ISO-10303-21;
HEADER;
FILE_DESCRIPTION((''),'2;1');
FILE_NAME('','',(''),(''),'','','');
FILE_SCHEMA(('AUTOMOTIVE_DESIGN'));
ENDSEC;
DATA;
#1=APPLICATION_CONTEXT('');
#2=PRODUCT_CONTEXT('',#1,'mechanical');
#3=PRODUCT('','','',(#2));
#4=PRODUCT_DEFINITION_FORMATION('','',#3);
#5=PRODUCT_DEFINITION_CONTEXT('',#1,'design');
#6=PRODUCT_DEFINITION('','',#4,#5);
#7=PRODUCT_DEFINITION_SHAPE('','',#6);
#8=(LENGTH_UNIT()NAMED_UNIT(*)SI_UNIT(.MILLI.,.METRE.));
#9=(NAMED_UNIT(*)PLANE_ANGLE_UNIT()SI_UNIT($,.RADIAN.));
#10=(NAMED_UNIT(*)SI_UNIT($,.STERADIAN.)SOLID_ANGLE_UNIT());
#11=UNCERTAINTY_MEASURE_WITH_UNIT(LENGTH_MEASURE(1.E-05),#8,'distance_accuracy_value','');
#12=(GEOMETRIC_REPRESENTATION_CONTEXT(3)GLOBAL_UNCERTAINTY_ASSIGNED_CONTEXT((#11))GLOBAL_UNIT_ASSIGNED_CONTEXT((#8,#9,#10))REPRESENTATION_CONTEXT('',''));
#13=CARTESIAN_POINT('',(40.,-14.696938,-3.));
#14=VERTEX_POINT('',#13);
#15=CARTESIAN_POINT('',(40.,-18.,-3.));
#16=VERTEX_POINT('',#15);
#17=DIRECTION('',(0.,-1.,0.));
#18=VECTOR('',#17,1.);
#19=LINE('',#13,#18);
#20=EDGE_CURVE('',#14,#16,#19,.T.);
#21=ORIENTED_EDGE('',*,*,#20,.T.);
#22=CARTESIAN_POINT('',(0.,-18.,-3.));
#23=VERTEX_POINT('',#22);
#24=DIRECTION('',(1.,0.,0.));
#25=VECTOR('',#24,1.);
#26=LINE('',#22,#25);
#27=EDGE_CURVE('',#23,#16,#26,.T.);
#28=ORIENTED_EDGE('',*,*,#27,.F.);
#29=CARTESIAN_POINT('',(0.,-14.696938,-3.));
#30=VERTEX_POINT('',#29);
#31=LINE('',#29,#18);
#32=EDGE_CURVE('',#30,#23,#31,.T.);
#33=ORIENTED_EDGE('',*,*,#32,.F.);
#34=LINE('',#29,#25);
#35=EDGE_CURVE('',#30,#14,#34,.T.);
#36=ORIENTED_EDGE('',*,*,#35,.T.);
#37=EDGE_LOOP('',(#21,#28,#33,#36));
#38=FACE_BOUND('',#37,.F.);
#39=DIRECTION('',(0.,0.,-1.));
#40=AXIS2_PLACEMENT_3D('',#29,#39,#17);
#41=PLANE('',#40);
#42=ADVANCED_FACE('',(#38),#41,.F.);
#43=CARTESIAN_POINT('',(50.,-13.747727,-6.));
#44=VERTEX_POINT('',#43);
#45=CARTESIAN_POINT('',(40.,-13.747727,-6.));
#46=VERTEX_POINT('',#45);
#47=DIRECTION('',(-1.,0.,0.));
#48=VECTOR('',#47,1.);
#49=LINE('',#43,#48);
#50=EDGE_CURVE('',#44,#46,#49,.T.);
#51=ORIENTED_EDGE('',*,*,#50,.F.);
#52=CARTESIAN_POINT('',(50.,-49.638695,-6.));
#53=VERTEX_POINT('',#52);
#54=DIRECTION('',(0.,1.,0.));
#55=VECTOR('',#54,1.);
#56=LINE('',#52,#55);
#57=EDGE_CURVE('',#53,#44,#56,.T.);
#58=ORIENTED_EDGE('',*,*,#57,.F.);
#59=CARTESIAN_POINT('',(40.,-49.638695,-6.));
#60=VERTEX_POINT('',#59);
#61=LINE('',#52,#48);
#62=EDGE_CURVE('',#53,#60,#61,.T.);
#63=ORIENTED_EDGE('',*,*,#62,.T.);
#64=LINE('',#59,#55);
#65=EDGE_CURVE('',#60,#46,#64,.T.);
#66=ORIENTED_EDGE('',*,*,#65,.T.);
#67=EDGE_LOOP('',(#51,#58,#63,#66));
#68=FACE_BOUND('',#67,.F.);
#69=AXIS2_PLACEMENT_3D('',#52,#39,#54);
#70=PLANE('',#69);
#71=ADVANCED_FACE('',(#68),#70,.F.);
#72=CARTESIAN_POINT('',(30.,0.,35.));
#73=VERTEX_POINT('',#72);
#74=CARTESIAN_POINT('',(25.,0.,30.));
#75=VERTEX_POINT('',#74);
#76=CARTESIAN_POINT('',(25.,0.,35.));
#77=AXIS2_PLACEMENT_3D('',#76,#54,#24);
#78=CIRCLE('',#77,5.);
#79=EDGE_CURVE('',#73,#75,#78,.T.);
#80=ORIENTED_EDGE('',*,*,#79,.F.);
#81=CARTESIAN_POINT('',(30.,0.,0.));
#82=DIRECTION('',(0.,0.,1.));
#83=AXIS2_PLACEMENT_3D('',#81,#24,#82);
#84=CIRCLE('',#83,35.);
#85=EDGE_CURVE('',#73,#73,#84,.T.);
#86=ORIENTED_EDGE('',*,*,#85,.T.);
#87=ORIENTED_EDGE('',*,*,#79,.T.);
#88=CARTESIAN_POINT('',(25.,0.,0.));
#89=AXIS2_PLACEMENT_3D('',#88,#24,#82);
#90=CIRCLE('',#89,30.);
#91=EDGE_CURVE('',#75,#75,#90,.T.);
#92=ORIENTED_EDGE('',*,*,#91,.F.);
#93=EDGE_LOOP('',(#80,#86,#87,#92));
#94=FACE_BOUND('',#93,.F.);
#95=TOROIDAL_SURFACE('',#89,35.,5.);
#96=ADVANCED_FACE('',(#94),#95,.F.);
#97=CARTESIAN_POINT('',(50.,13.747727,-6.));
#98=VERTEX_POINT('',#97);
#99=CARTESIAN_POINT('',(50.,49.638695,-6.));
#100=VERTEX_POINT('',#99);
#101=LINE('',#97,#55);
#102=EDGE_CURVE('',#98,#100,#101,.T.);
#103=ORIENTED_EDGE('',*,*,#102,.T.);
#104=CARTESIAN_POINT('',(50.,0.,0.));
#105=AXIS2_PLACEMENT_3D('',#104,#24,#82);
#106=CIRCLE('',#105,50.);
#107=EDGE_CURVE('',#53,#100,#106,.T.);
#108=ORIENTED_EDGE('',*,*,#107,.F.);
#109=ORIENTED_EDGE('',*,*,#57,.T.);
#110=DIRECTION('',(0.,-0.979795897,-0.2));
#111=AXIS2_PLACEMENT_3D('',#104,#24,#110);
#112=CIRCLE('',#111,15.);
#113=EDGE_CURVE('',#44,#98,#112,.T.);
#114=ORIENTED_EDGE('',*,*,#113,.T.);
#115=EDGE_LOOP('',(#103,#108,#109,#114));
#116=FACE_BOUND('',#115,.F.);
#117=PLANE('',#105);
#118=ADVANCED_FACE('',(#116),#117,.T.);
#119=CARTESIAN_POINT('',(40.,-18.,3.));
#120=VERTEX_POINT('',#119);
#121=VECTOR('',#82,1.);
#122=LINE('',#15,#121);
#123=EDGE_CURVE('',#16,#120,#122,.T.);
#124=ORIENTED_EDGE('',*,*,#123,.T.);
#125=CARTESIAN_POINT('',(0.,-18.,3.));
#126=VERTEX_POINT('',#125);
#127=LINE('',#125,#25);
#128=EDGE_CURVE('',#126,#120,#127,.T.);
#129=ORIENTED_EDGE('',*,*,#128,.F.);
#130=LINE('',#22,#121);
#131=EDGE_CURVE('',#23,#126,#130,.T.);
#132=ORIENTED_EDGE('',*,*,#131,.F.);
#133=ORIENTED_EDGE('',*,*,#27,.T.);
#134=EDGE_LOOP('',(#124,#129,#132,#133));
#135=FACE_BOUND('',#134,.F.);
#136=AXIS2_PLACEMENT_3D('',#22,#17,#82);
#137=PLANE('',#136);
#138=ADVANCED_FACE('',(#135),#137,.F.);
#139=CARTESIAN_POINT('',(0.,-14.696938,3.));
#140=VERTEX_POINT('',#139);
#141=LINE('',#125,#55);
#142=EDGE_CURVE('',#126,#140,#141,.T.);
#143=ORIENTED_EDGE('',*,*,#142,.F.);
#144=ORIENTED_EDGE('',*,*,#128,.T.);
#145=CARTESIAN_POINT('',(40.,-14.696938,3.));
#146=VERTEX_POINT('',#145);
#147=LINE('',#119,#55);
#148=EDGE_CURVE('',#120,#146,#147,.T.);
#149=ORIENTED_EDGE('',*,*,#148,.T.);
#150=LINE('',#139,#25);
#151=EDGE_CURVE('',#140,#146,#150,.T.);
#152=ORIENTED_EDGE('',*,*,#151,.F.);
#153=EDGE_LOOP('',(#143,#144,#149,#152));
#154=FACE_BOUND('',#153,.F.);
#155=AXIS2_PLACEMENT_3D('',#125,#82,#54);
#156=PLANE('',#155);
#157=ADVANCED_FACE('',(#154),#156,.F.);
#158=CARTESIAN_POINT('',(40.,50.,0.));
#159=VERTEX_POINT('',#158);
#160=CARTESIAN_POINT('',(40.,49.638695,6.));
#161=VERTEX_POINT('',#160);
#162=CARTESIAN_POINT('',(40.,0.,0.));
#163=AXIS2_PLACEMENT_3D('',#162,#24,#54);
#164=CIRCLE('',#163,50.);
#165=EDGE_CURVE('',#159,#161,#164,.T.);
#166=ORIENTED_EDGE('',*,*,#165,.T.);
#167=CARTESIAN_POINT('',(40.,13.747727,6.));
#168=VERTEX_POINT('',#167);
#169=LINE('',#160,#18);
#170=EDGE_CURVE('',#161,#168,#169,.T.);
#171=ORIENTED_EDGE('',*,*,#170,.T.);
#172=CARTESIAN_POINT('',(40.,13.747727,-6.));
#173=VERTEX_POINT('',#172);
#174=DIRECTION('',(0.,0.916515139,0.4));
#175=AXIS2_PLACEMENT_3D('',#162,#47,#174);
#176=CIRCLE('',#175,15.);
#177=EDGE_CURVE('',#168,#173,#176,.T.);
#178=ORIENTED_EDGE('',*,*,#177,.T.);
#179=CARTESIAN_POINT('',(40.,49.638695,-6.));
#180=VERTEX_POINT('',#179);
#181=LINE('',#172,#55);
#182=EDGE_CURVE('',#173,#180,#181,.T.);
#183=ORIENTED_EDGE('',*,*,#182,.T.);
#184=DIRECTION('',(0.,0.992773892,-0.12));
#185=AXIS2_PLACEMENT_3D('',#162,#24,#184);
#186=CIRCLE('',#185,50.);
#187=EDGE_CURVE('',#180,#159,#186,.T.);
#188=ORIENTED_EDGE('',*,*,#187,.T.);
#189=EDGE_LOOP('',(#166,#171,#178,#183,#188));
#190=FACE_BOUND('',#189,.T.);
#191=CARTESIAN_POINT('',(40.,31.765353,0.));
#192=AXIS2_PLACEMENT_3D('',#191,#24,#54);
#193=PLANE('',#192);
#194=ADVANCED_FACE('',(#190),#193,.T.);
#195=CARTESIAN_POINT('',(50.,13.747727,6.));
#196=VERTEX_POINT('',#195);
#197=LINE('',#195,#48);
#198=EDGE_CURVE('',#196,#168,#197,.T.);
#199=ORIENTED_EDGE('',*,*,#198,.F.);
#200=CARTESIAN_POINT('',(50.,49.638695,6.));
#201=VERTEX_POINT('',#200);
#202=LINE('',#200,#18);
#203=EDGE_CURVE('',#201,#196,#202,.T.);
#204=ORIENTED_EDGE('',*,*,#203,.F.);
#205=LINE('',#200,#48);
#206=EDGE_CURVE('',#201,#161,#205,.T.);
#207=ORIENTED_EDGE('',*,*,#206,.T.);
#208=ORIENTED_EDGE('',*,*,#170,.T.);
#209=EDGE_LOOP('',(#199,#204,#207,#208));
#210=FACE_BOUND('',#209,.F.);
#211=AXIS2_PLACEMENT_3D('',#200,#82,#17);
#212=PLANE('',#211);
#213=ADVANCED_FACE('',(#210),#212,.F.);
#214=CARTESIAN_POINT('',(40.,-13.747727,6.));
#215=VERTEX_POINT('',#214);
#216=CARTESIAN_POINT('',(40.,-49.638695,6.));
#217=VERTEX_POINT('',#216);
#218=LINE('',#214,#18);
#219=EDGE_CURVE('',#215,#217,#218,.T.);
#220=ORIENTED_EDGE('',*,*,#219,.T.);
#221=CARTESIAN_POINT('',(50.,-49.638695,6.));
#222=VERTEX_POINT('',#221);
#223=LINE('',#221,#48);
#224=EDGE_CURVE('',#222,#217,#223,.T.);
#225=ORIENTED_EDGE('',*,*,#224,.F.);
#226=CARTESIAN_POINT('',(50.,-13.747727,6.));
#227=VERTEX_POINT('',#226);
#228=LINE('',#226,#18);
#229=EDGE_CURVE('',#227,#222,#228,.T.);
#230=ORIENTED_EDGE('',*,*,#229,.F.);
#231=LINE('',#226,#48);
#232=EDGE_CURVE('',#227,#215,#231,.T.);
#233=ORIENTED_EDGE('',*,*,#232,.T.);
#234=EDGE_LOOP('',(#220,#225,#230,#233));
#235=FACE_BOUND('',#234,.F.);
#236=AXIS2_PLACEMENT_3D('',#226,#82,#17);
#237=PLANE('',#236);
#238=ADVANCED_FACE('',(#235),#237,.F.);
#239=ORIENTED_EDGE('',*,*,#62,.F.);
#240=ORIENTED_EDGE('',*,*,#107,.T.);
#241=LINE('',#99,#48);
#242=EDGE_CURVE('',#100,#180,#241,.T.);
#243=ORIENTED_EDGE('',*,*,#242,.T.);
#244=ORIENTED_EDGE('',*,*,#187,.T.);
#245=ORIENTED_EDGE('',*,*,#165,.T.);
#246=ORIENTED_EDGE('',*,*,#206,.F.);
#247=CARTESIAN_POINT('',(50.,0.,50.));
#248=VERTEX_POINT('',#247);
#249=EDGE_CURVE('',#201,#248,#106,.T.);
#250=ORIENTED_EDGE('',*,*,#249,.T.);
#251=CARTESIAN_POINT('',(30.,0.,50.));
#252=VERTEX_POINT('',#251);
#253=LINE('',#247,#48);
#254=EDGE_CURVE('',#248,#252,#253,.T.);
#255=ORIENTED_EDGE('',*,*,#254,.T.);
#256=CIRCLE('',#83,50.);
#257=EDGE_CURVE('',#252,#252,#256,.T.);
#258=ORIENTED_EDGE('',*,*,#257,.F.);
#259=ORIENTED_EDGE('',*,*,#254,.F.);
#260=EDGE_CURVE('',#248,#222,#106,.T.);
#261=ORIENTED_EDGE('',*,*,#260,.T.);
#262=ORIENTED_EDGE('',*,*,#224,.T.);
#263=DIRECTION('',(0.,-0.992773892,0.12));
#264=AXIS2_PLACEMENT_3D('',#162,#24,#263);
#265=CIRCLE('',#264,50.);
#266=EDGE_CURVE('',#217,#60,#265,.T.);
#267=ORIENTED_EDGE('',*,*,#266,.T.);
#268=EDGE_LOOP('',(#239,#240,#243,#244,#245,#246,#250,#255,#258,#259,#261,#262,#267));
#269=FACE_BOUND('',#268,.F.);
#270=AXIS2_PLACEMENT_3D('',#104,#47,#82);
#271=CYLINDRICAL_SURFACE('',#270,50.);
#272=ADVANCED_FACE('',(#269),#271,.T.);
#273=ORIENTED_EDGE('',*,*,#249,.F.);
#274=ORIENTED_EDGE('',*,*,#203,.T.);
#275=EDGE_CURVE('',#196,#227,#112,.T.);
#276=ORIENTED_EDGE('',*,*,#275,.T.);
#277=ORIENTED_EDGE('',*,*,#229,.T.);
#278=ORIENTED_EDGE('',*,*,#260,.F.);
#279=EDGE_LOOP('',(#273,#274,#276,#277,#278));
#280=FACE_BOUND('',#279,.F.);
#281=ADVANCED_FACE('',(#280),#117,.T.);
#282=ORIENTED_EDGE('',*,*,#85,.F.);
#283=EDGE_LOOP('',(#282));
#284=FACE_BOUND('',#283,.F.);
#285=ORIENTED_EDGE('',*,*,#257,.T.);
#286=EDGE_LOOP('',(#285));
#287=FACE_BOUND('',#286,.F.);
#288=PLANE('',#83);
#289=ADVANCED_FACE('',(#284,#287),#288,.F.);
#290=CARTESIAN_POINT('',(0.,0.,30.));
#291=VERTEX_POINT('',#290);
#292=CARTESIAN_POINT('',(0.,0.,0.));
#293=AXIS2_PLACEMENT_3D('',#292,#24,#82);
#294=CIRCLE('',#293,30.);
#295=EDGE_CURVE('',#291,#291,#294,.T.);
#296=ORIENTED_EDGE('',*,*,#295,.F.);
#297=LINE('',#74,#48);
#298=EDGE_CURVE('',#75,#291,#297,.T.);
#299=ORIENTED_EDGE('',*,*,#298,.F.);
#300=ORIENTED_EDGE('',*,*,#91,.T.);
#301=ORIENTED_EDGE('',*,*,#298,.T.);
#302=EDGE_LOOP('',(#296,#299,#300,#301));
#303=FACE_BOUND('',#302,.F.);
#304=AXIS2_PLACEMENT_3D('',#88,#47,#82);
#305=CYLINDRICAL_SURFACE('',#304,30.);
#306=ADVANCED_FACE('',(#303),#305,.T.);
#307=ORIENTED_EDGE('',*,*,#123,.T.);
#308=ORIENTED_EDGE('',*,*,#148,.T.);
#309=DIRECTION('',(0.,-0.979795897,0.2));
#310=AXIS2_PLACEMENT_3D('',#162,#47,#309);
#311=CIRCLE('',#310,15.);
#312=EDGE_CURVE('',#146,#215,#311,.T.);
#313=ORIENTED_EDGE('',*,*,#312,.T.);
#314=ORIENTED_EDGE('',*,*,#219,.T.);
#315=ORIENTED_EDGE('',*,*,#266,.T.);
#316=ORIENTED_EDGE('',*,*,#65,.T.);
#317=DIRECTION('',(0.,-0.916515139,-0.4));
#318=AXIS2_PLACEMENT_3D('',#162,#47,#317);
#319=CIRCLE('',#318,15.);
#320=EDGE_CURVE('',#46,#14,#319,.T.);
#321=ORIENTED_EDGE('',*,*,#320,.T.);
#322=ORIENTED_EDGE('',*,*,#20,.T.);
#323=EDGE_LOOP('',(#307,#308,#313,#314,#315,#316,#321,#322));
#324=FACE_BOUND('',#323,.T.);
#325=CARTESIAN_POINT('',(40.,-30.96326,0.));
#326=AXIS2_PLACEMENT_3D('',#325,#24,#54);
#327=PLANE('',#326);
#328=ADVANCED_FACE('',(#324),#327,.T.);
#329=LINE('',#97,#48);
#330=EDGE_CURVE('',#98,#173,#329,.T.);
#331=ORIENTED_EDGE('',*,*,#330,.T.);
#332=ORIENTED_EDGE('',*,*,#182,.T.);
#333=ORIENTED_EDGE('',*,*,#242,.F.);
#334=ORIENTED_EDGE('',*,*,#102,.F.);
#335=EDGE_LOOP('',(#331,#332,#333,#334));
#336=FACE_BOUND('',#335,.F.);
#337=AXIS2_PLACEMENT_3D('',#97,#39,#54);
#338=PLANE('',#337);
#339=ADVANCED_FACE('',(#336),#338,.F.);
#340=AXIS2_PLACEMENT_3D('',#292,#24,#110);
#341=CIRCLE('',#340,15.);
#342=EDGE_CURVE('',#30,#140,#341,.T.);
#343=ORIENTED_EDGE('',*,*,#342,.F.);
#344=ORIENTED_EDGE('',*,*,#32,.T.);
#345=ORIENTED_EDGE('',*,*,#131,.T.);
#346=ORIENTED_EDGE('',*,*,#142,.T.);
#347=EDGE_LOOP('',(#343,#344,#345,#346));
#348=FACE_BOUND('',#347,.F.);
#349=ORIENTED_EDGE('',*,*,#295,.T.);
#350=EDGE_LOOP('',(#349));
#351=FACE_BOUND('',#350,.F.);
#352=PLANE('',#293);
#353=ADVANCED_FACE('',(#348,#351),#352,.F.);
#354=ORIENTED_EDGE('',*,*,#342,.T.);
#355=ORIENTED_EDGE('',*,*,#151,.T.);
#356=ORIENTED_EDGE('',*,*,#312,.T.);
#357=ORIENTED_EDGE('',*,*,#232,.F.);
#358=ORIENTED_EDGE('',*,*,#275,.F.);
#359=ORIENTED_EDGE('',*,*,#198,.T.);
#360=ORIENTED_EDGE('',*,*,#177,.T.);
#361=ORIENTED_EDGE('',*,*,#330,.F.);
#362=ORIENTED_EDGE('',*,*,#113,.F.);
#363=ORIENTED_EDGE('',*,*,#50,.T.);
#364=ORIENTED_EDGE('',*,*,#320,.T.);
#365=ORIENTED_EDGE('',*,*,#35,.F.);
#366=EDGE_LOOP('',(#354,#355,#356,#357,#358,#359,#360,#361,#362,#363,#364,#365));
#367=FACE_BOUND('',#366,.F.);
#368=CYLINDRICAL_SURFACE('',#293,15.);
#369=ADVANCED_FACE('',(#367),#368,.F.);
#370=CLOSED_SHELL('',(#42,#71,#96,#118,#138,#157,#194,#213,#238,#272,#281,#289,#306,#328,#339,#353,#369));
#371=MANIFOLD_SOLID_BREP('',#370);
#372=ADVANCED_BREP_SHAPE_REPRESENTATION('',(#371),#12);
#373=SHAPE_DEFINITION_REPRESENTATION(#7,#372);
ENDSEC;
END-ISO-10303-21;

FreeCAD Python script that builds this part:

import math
import FreeCAD as App
import Part
import Sketcher
from FreeCAD import Vector

doc = App.newDocument("Part")
body = doc.addObject("PartDesign::Body", "Body")

sketch1 = body.newObject("Sketcher::SketchObject", "Sketch")
sketch1.AttachmentSupport = (doc.getObject("XZ_Plane"), [""])
sketch1.MapMode = "FlatFace"
sketch1.addGeometry([
    Part.LineSegment(Vector(0, 30, 0), Vector(0, 15, 0)),
    Part.LineSegment(Vector(0, 15, 0), Vector(50, 15, 0)),
    Part.LineSegment(Vector(50, 15, 0), Vector(50, 50, 0)),
    Part.LineSegment(Vector(50, 50, 0), Vector(30, 50, 0)),
    Part.LineSegment(Vector(30, 50, 0), Vector(30, 35, 0)),
    Part.ArcOfCircle(Part.Circle(Vector(25, 35, 0), Vector(0, 0, 1), 5), math.radians(-90), math.radians(0)),
    Part.LineSegment(Vector(25, 30, 0), Vector(0, 30, 0)),
], False)
sketch1.addConstraint([
    Sketcher.Constraint("Coincident", 0, 2, 1, 1),
    Sketcher.Constraint("Coincident", 1, 2, 2, 1),
    Sketcher.Constraint("Coincident", 2, 2, 3, 1),
    Sketcher.Constraint("Coincident", 3, 2, 4, 1),
    Sketcher.Constraint("Tangent", 4, 2, 5, 2),
    Sketcher.Constraint("Tangent", 5, 1, 6, 1),
    Sketcher.Constraint("Coincident", 6, 2, 0, 1),
    Sketcher.Constraint("Vertical", 0),
    Sketcher.Constraint("Horizontal", 1),
    Sketcher.Constraint("Vertical", 2),
    Sketcher.Constraint("Horizontal", 3),
    Sketcher.Constraint("Vertical", 4),
    Sketcher.Constraint("Horizontal", 6),
    Sketcher.Constraint("PointOnObject", 0, 2, -2),
    Sketcher.Constraint("Equal", 0, 4),
    Sketcher.Constraint("Radius", 5, 5.0),
    Sketcher.Constraint("DistanceX", 1, 1, 1, 2, 50.0),
    Sketcher.Constraint("DistanceX", 3, 2, 3, 1, 20.0),
    Sketcher.Constraint("DistanceY", 0, 2, 0, 1, 15.0),
    Sketcher.Constraint("DistanceY", -1, 1, 5, 3, 35.0),
])
revolution = body.newObject("PartDesign::Revolution", "Revolution")
revolution.Profile = sketch1
revolution.ReferenceAxis = (sketch1, ["H_Axis"])
revolution.Angle = 360

sketch2 = body.newObject("Sketcher::SketchObject", "Sketch001")
sketch2.AttachmentSupport = (doc.getObject("YZ_Plane"), [""])
sketch2.MapMode = "FlatFace"
sketch2.addGeometry([
    Part.ArcOfCircle(Part.Circle(Vector(0, 0, 0), Vector(0, 0, 1), 15), math.radians(180), math.radians(191.536959)),
    Part.LineSegment(Vector(-14.696938, -3, 0), Vector(-18, -3, 0)),
    Part.LineSegment(Vector(-18, -3, 0), Vector(-18, 3, 0)),
    Part.LineSegment(Vector(-18, 3, 0), Vector(-14.696938, 3, 0)),
    Part.ArcOfCircle(Part.Circle(Vector(0, 0, 0), Vector(0, 0, 1), 15), math.radians(168.463041), math.radians(180)),
], False)
sketch2.addConstraint([
    Sketcher.Constraint("Coincident", 0, 2, 1, 1),
    Sketcher.Constraint("Coincident", 1, 2, 2, 1),
    Sketcher.Constraint("Coincident", 2, 2, 3, 1),
    Sketcher.Constraint("Coincident", 3, 2, 4, 1),
    Sketcher.Constraint("Tangent", 4, 2, 0, 1),
    Sketcher.Constraint("Horizontal", 1),
    Sketcher.Constraint("Vertical", 2),
    Sketcher.Constraint("Horizontal", 3),
    Sketcher.Constraint("Coincident", 0, 3, -1, 1),
    Sketcher.Constraint("Equal", 0, 4),
    Sketcher.Constraint("PointOnObject", 4, 2, -1),
    Sketcher.Constraint("Vertical", 0, 2, 3, 2),
    Sketcher.Constraint("Radius", 0, 15.0),
    Sketcher.Constraint("DistanceY", 2, 1, 2, 2, 6.0),
    Sketcher.Constraint("DistanceX", 1, 2, -1, 1, 18.0),
])
pocket1 = body.newObject("PartDesign::Pocket", "Pocket")
pocket1.Profile = sketch2
pocket1.Length = 50
pocket1.Reversed = True

sketch3 = body.newObject("Sketcher::SketchObject", "Sketch002")
sketch3.AttachmentSupport = (doc.getObject("YZ_Plane"), [""])
sketch3.MapMode = "FlatFace"
sketch3.AttachmentOffset = App.Placement(Vector(0, 0, 50), App.Rotation())
sketch3.addGeometry([
    Part.LineSegment(Vector(-13.747727, 6, 0), Vector(-49.638695, 6, 0)),
    Part.ArcOfCircle(Part.Circle(Vector(0, 0, 0), Vector(0, 0, 1), 50), math.radians(173.107897), math.radians(186.892103)),
    Part.LineSegment(Vector(-49.638695, -6, 0), Vector(-13.747727, -6, 0)),
    Part.ArcOfCircle(Part.Circle(Vector(0, 0, 0), Vector(0, 0, 1), 15), math.radians(-168.463041), math.radians(-156.421822)),
    Part.LineSegment(Vector(-14.696938, -3, 0), Vector(-18, -3, 0)),
    Part.LineSegment(Vector(-18, -3, 0), Vector(-18, 3, 0)),
    Part.LineSegment(Vector(-18, 3, 0), Vector(-14.696938, 3, 0)),
    Part.ArcOfCircle(Part.Circle(Vector(0, 0, 0), Vector(0, 0, 1), 15), math.radians(156.421822), math.radians(168.463041)),
    Part.ArcOfCircle(Part.Circle(Vector(0, 0, 0), Vector(0, 0, 1), 50), math.radians(0), math.radians(6.892103)),
    Part.LineSegment(Vector(49.638695, 6, 0), Vector(13.747727, 6, 0)),
    Part.ArcOfCircle(Part.Circle(Vector(0, 0, 0), Vector(0, 0, 1), 15), math.radians(-23.578178), math.radians(23.578178)),
    Part.LineSegment(Vector(13.747727, -6, 0), Vector(49.638695, -6, 0)),
    Part.ArcOfCircle(Part.Circle(Vector(0, 0, 0), Vector(0, 0, 1), 50), math.radians(-6.892103), math.radians(0)),
], False)
sketch3.addConstraint([
    Sketcher.Constraint("Coincident", 0, 2, 1, 1),
    Sketcher.Constraint("Coincident", 1, 2, 2, 1),
    Sketcher.Constraint("Coincident", 2, 2, 3, 2),
    Sketcher.Constraint("Coincident", 3, 1, 4, 1),
    Sketcher.Constraint("Coincident", 4, 2, 5, 1),
    Sketcher.Constraint("Coincident", 5, 2, 6, 1),
    Sketcher.Constraint("Coincident", 6, 2, 7, 2),
    Sketcher.Constraint("Coincident", 7, 1, 0, 1),
    Sketcher.Constraint("Coincident", 8, 2, 9, 1),
    Sketcher.Constraint("Coincident", 9, 2, 10, 2),
    Sketcher.Constraint("Coincident", 10, 1, 11, 1),
    Sketcher.Constraint("Coincident", 11, 2, 12, 1),
    Sketcher.Constraint("Tangent", 12, 2, 8, 1),
    Sketcher.Constraint("Horizontal", 0),
    Sketcher.Constraint("Horizontal", 2),
    Sketcher.Constraint("Horizontal", 4),
    Sketcher.Constraint("Vertical", 5),
    Sketcher.Constraint("Horizontal", 6),
    Sketcher.Constraint("Horizontal", 9),
    Sketcher.Constraint("Horizontal", 11),
    Sketcher.Constraint("Coincident", 1, 3, -1, 1),
    Sketcher.Constraint("Coincident", 3, 3, -1, 1),
    Sketcher.Constraint("Coincident", 7, 3, -1, 1),
    Sketcher.Constraint("Coincident", 8, 3, -1, 1),
    Sketcher.Constraint("Coincident", 10, 3, -1, 1),
    Sketcher.Constraint("Equal", 3, 7),
    Sketcher.Constraint("Equal", 1, 8),
    Sketcher.Constraint("Equal", 7, 10),
    Sketcher.Constraint("Equal", 8, 12),
    Sketcher.Constraint("PointOnObject", 12, 2, -1),
    Sketcher.Constraint("Horizontal", 7, 1, 8, 2),
    Sketcher.Constraint("Horizontal", 2, 2, 10, 1),
    Sketcher.Constraint("Vertical", 0, 2, 1, 2),
    Sketcher.Constraint("Vertical", 3, 1, 6, 2),
    Sketcher.Constraint("Radius", 1, 50.0),
    Sketcher.Constraint("Radius", 3, 15.0),
    Sketcher.Constraint("DistanceY", 5, 1, 5, 2, 6.0),
    Sketcher.Constraint("DistanceY", -1, 1, 0, 2, 6.0),
    Sketcher.Constraint("DistanceX", 4, 2, -1, 1, 18.0),
])
pocket2 = body.newObject("PartDesign::Pocket", "Pocket001")
pocket2.Profile = sketch3
pocket2.Length = 10

doc.recompute()
